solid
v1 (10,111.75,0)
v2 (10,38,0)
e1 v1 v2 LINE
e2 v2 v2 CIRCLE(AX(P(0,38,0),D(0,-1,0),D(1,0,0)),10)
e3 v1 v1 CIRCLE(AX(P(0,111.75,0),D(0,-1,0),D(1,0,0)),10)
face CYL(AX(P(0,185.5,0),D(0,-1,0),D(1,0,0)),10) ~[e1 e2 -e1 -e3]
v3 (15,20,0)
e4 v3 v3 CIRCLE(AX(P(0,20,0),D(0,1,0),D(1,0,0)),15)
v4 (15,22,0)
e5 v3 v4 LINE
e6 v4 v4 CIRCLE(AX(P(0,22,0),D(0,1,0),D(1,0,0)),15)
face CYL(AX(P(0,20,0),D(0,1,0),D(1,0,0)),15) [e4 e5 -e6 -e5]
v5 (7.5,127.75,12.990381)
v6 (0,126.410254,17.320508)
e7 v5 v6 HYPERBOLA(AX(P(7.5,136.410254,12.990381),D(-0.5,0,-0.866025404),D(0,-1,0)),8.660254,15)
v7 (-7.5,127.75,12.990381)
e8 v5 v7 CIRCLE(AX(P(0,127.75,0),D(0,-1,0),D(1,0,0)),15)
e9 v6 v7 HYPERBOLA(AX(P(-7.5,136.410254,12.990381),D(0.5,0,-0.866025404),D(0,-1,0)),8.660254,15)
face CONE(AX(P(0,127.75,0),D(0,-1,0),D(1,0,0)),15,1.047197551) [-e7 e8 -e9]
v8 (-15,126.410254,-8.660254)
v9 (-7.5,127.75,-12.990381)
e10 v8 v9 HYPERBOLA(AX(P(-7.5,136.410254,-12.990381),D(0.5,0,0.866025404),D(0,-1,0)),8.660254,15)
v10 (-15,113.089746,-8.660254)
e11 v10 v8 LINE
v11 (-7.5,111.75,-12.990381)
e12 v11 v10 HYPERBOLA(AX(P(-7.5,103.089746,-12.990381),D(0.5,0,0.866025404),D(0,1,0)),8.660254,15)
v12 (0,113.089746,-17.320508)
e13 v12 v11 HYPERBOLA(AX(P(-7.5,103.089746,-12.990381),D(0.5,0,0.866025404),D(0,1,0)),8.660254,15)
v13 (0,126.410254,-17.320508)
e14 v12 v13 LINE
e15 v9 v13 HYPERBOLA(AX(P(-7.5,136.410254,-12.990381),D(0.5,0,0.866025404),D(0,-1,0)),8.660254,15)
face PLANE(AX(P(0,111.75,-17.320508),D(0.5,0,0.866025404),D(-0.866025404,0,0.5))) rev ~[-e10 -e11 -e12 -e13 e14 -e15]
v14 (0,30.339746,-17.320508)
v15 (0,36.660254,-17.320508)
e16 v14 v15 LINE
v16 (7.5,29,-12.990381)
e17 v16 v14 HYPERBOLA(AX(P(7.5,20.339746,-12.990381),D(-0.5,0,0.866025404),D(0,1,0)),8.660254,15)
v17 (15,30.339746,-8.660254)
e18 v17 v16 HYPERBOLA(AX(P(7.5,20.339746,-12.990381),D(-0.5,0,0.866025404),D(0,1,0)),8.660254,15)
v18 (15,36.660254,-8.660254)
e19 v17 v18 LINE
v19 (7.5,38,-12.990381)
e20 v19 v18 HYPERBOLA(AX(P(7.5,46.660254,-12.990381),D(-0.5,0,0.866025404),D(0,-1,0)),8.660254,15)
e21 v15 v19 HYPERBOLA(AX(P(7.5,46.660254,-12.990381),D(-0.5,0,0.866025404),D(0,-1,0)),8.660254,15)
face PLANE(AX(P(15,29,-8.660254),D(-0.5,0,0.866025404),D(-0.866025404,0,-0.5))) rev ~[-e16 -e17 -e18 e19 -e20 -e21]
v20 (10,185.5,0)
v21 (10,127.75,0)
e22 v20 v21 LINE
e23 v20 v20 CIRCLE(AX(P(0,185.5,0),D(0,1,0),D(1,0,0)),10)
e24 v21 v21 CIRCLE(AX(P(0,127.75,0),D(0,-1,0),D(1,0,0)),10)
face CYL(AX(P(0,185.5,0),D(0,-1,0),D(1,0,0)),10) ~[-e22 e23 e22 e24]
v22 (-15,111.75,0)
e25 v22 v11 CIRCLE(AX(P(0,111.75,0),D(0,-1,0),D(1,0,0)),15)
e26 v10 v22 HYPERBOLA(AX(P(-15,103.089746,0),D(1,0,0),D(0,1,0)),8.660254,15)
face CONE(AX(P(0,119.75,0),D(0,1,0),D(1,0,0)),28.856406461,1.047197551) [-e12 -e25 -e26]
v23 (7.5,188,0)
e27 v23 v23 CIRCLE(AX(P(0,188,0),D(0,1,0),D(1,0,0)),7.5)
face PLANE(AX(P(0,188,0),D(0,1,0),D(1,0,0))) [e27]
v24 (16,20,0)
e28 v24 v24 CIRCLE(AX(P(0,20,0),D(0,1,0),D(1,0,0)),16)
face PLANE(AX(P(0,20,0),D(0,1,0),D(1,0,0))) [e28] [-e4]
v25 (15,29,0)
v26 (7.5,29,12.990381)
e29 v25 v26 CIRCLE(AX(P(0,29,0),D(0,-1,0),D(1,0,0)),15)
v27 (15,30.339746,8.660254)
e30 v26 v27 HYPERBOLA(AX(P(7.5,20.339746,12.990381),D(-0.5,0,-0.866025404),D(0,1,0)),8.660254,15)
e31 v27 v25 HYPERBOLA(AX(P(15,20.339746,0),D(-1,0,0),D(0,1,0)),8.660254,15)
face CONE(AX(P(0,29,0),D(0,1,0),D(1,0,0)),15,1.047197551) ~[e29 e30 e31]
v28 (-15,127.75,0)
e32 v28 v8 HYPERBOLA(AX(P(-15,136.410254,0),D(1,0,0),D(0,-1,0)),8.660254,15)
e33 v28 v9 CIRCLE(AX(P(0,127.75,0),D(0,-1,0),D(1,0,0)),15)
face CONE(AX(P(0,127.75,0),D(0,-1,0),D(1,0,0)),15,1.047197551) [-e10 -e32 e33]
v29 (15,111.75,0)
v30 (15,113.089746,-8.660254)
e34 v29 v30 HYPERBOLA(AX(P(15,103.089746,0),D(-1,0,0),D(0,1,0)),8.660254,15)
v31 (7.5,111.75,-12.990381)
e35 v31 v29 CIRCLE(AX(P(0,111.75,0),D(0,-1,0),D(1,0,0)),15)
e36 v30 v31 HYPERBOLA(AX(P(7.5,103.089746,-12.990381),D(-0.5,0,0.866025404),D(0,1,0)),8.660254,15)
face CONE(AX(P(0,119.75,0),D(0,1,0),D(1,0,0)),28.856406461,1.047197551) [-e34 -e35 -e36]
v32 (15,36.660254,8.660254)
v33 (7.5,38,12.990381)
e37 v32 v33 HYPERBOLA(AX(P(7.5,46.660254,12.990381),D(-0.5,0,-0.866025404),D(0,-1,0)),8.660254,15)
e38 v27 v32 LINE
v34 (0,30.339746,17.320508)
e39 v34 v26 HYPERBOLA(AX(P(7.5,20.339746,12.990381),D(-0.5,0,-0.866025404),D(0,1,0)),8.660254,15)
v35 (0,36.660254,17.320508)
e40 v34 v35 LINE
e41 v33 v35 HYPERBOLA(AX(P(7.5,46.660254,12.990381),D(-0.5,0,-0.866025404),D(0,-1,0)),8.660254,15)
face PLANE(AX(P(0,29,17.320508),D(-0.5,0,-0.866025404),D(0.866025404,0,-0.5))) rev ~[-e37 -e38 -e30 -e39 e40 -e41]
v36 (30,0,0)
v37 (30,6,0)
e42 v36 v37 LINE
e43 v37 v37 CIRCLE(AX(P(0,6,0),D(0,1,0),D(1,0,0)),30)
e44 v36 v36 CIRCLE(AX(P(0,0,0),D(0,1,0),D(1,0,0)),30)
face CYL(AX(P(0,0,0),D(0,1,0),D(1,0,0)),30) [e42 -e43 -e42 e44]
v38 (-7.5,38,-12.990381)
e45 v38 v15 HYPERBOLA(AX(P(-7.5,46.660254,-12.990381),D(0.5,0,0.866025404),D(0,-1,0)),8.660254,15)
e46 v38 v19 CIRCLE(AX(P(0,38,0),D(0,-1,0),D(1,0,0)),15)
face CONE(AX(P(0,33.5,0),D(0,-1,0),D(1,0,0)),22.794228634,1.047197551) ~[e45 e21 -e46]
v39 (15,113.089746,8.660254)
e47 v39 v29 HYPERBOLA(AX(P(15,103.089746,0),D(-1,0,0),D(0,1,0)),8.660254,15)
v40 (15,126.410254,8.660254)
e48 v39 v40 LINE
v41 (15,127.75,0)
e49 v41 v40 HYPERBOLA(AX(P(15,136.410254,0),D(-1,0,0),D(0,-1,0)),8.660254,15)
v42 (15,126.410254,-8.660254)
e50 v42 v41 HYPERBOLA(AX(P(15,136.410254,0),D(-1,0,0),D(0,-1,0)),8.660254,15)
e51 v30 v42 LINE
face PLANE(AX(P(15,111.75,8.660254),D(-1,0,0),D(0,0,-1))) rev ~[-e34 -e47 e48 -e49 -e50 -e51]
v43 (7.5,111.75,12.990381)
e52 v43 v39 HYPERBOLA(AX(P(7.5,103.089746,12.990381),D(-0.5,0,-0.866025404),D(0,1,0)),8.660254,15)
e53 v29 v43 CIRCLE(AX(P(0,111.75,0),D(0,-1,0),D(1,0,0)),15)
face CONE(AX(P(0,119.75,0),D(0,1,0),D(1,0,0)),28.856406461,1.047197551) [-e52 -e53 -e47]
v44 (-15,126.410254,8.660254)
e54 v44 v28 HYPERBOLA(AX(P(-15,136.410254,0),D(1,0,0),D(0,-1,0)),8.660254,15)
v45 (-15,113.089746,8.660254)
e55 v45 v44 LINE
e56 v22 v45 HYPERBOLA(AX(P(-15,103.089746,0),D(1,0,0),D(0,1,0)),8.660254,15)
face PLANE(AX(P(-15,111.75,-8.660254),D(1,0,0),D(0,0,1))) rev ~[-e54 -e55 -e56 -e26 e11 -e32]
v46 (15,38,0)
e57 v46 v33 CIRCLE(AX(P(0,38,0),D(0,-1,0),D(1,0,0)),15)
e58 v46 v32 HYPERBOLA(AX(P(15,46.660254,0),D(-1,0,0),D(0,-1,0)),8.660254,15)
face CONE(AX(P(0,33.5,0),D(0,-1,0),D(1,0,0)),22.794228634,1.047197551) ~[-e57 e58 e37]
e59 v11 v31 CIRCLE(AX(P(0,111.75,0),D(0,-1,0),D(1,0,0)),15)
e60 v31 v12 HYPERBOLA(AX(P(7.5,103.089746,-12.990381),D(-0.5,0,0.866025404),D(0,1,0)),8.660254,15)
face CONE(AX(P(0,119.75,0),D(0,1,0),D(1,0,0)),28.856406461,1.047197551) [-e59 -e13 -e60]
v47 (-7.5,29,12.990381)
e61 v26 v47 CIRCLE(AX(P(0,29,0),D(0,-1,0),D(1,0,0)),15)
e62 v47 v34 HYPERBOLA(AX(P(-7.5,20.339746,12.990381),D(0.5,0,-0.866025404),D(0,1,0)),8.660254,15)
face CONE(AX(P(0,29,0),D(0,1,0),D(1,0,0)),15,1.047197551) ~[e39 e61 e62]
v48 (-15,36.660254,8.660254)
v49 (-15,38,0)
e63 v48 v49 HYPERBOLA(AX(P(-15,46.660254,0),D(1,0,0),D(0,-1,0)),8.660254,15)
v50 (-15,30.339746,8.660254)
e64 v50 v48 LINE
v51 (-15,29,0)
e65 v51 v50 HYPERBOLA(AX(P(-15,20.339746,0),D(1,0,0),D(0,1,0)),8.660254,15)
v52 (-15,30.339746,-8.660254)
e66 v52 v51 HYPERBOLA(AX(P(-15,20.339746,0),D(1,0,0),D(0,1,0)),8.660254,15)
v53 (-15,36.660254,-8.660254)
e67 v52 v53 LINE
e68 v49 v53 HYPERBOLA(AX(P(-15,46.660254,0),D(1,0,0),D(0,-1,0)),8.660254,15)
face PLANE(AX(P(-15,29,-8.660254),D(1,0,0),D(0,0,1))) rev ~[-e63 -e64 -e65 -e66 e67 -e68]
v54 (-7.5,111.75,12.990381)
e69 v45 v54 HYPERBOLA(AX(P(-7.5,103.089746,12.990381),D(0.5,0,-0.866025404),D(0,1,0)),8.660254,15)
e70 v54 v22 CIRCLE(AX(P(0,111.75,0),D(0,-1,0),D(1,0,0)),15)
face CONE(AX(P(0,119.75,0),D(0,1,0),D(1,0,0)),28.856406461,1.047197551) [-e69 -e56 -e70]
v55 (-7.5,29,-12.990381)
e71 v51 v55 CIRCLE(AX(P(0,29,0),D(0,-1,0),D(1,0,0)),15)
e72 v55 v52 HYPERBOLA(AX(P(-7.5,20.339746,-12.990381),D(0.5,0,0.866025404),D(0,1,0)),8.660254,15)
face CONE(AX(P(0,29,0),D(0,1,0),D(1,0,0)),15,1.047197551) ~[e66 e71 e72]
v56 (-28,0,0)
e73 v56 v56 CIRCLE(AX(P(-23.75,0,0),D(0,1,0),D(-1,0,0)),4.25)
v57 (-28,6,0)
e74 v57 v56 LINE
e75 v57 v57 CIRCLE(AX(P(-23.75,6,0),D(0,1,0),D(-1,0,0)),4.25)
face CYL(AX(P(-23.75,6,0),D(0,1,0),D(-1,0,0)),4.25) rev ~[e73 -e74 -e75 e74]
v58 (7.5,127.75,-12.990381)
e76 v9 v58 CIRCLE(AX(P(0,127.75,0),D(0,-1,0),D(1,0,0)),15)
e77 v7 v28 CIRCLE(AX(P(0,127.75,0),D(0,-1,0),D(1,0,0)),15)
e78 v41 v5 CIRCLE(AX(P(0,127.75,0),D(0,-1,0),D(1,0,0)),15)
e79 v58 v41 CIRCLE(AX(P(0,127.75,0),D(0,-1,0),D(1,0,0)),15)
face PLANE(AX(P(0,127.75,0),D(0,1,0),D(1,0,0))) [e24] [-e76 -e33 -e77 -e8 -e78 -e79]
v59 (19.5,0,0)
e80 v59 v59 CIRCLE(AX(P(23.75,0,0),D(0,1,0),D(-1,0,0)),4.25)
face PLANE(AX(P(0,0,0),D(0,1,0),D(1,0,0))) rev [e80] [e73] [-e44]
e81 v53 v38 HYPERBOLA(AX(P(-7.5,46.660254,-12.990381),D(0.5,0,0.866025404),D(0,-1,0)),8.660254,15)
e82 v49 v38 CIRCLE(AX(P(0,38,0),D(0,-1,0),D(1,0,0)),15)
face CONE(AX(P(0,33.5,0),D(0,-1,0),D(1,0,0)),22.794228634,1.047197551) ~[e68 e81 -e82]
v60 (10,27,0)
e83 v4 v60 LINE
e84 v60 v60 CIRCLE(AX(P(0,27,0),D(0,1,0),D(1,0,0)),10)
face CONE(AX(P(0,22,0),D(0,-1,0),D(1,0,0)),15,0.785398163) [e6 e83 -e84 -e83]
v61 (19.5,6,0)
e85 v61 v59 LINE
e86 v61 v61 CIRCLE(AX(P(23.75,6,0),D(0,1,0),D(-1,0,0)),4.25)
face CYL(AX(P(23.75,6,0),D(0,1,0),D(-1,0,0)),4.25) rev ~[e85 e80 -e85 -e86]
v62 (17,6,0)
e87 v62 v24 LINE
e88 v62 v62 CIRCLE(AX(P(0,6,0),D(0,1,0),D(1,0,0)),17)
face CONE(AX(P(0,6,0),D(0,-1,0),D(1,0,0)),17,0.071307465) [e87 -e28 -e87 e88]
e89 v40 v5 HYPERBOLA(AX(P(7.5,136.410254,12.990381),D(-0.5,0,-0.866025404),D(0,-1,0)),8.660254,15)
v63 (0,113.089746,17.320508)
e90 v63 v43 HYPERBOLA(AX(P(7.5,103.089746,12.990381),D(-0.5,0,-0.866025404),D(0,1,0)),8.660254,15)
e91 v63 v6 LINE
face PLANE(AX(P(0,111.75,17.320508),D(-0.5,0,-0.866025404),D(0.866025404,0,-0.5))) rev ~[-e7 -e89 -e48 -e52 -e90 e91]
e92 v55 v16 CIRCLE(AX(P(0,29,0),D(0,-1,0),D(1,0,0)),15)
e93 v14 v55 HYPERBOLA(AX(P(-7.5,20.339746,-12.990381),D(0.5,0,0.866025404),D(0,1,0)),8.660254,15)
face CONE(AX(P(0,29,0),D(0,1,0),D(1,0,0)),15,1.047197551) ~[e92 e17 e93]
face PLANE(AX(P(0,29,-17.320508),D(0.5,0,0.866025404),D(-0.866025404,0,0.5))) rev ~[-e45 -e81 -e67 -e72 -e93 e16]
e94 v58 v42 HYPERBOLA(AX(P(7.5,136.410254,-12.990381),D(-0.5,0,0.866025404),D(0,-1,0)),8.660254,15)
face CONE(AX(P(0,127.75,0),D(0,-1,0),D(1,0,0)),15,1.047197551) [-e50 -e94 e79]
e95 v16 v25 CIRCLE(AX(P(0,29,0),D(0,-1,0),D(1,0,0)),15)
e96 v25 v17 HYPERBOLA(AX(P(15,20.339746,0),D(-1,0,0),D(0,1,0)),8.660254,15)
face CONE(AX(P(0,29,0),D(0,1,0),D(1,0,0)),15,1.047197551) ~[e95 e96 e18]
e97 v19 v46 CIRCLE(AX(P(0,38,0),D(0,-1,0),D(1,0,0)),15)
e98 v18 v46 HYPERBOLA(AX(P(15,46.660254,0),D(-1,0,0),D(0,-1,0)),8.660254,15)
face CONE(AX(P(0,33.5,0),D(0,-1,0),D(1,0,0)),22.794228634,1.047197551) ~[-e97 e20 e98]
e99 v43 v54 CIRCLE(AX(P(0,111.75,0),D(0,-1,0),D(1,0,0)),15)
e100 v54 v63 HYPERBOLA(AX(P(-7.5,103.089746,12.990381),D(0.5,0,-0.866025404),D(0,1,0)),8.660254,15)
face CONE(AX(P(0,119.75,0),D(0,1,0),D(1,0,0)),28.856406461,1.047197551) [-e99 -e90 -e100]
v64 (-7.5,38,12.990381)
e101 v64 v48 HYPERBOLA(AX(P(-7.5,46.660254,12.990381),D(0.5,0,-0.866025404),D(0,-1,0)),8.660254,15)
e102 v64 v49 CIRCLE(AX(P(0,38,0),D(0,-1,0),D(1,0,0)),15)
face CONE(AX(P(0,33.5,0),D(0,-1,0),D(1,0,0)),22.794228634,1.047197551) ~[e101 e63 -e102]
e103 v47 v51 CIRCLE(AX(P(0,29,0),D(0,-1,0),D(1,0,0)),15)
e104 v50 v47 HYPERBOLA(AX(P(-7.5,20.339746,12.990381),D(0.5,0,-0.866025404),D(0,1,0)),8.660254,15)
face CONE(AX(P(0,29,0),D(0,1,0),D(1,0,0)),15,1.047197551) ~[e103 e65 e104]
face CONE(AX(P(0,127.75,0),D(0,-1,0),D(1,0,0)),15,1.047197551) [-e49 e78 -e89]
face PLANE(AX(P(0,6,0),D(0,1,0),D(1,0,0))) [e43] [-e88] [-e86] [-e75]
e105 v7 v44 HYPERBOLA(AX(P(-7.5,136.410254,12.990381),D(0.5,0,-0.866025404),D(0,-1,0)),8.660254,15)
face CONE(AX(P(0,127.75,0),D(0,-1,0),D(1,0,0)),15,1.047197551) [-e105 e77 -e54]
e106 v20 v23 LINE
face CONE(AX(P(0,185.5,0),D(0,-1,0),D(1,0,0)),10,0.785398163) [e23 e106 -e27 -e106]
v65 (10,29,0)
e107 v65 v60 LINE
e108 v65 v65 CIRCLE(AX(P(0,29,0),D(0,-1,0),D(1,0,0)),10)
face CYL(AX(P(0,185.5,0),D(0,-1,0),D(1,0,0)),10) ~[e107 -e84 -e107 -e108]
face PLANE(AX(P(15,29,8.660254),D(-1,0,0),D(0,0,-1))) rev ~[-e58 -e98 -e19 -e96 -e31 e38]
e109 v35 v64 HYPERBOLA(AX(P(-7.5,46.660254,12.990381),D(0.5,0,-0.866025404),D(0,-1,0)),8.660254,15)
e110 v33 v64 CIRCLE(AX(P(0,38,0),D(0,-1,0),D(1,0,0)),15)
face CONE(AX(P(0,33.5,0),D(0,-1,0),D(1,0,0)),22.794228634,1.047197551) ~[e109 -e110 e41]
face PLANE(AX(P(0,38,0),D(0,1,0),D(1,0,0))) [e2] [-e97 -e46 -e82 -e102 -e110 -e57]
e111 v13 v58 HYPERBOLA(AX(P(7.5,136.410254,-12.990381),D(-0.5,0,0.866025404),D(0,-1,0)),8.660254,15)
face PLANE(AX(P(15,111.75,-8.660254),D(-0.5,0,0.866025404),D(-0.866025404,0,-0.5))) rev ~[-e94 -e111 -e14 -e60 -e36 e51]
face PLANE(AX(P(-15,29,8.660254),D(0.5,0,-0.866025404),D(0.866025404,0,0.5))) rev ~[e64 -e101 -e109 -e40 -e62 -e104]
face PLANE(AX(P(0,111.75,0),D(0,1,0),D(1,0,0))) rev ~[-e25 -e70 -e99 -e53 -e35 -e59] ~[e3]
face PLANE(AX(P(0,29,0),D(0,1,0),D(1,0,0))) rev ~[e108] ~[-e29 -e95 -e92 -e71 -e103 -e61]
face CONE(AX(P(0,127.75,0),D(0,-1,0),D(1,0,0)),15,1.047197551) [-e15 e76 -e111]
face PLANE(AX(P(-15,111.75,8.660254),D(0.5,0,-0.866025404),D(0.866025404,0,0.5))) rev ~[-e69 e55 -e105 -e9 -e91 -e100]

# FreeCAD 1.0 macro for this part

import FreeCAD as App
import Part
import Sketcher
from FreeCAD import Vector
Q = App.Units.Quantity


def add_polygon(sketch, points):
    """Adds a closed chain of lines whose ends are joined by coincident constraints."""
    first, n = sketch.GeometryCount, len(points)
    for a, b in zip(points, points[1:] + points[:1]):
        sketch.addGeometry(Part.LineSegment(App.Vector(*a, 0), App.Vector(*b, 0)), False)
    for i in range(n):
        sketch.addConstraint(Sketcher.Constraint("Coincident", first + i, 2, first + (i + 1) % n, 1))

doc = App.newDocument("Part")
body = doc.addObject("PartDesign::Body", "Body")

sketch1 = body.newObject("Sketcher::SketchObject", "Sketch")
sketch1.AttachmentSupport = (doc.getObject("XY_Plane"), [""])
sketch1.MapMode = "FlatFace"
add_polygon(sketch1, [(-30, 0), (0, 0), (0, 188), (-7.5, 188), (-10, 185.5), (-10, 27), (-15, 22), (-15, 20), (-16, 20), (-17, 6), (-30, 6)])
sketch1.addConstraint(Sketcher.Constraint("Horizontal", 0))
sketch1.addConstraint(Sketcher.Constraint("Vertical", 1))
sketch1.addConstraint(Sketcher.Constraint("Horizontal", 2))
sketch1.addConstraint(Sketcher.Constraint("Vertical", 4))
sketch1.addConstraint(Sketcher.Constraint("Vertical", 6))
sketch1.addConstraint(Sketcher.Constraint("Horizontal", 7))
sketch1.addConstraint(Sketcher.Constraint("Horizontal", 9))
sketch1.addConstraint(Sketcher.Constraint("Vertical", 10))
sketch1.addConstraint(Sketcher.Constraint("Coincident", 0, 2, -1, 1))
sketch1.addConstraint(Sketcher.Constraint("Parallel", 3, 5))
sketch1.addConstraint(Sketcher.Constraint("DistanceX", 0, 1, 0, 2, 30.0))
sketch1.addConstraint(Sketcher.Constraint("DistanceX", 7, 2, 7, 1, 1.0))
sketch1.addConstraint(Sketcher.Constraint("DistanceX", 9, 2, 9, 1, 13.0))
sketch1.addConstraint(Sketcher.Constraint("DistanceY", 1, 1, 1, 2, 188.0))
sketch1.addConstraint(Sketcher.Constraint("DistanceY", 6, 2, 6, 1, 2.0))
sketch1.addConstraint(Sketcher.Constraint("DistanceY", 10, 2, 10, 1, 6.0))
sketch1.addConstraint(Sketcher.Constraint("Angle", 3, Q("-135 deg")))
sketch1.addConstraint(Sketcher.Constraint("DistanceX", 2, 2, 2, 1, 7.5))
sketch1.addConstraint(Sketcher.Constraint("DistanceY", 4, 2, 4, 1, 158.5))
sketch1.addConstraint(Sketcher.Constraint("DistanceX", 3, 2, -1, 1, 10.0))
sketch1.addConstraint(Sketcher.Constraint("DistanceX", 5, 2, -1, 1, 15.0))
revolution = body.newObject("PartDesign::Revolution", "Revolution")
revolution.Profile = sketch1
revolution.ReferenceAxis = (sketch1, ["V_Axis"])
revolution.Angle = 360

sketch2 = body.newObject("Sketcher::SketchObject", "Sketch001")
sketch2.AttachmentSupport = (doc.getObject("XZ_Plane"), [""])
sketch2.MapMode = "FlatFace"
sketch2.AttachmentOffset = App.Placement(Vector(0, 0, -29), App.Rotation())
add_polygon(sketch2, [(0, -17.320508), (-15, -8.660254), (-15, 8.660254), (0, 17.320508), (15, 8.660254), (15, -8.660254)])
sketch2.addConstraint(Sketcher.Constraint("Vertical", 1))
sketch2.addConstraint(Sketcher.Constraint("Vertical", 4))
sketch2.addConstraint(Sketcher.Constraint("Symmetric", 0, 2, 3, 2, -1, 1))
sketch2.addConstraint(Sketcher.Constraint("Symmetric", 2, 2, 5, 2, -1, 1))
sketch2.addConstraint(Sketcher.Constraint("PointOnObject", 2, 2, -2))
sketch2.addConstraint(Sketcher.Constraint("Parallel", 2, 5))
sketch2.addConstraint(Sketcher.Constraint("Horizontal", 1, 2, 3, 2))
sketch2.addConstraint(Sketcher.Constraint("Angle", 0, Q("150 deg")))
sketch2.addConstraint(Sketcher.Constraint("DistanceX", 0, 2, -1, 1, 15.0))
sketch2.addConstraint(Sketcher.Constraint("DistanceY", 1, 1, 1, 2, 17.320508))
pad1 = body.newObject("PartDesign::Pad", "Pad")
pad1.Profile = sketch2
pad1.Length = 9
pad1.Reversed = True

sketch3 = body.newObject("Sketcher::SketchObject", "Sketch002")
sketch3.AttachmentSupport = (doc.getObject("XZ_Plane"), [""])
sketch3.MapMode = "FlatFace"
sketch3.AttachmentOffset = App.Placement(Vector(0, 0, -111.75), App.Rotation())
add_polygon(sketch3, [(15, -8.660254), (0, -17.320508), (-15, -8.660254), (-15, 8.660254), (0, 17.320508), (15, 8.660254)])
sketch3.addConstraint(Sketcher.Constraint("Vertical", 2))
sketch3.addConstraint(Sketcher.Constraint("Vertical", 5))
sketch3.addConstraint(Sketcher.Constraint("Symmetric", 0, 2, 3, 2, -1, 1))
sketch3.addConstraint(Sketcher.Constraint("Symmetric", 1, 2, 4, 2, -1, 1))
sketch3.addConstraint(Sketcher.Constraint("PointOnObject", 0, 2, -2))
sketch3.addConstraint(Sketcher.Constraint("Parallel", 0, 3))
sketch3.addConstraint(Sketcher.Constraint("Horizontal", 2, 2, 4, 2))
sketch3.addConstraint(Sketcher.Constraint("Angle", 0, Q("-150 deg")))
sketch3.addConstraint(Sketcher.Constraint("DistanceX", 1, 2, -1, 1, 15.0))
sketch3.addConstraint(Sketcher.Constraint("DistanceY", 2, 1, 2, 2, 17.320508))
pad2 = body.newObject("PartDesign::Pad", "Pad001")
pad2.Profile = sketch3
pad2.Length = 16
pad2.Reversed = True

sketch4 = body.newObject("Sketcher::SketchObject", "Sketch003")
sketch4.AttachmentSupport = (doc.getObject("XY_Plane"), [""])
sketch4.MapMode = "FlatFace"
add_polygon(sketch4, [(-15, 127.75), (-28.856406, 127.75), (-28.856406, 119.75)])
add_polygon(sketch4, [(-28.856406, 119.75), (-28.856406, 111.75), (-15, 111.75)])
add_polygon(sketch4, [(-22.794229, 38), (-22.794229, 33.5), (-15, 38)])
add_polygon(sketch4, [(-22.794229, 33.5), (-22.794229, 29), (-15, 29)])
sketch4.addConstraint(Sketcher.Constraint("Horizontal", 0))
sketch4.addConstraint(Sketcher.Constraint("Vertical", 1))
sketch4.addConstraint(Sketcher.Constraint("Vertical", 3))
sketch4.addConstraint(Sketcher.Constraint("Horizontal", 4))
sketch4.addConstraint(Sketcher.Constraint("Vertical", 6))
sketch4.addConstraint(Sketcher.Constraint("Horizontal", 8))
sketch4.addConstraint(Sketcher.Constraint("Vertical", 9))
sketch4.addConstraint(Sketcher.Constraint("Horizontal", 10))
sketch4.addConstraint(Sketcher.Constraint("Coincident", 5, 2, 1, 2))
sketch4.addConstraint(Sketcher.Constraint("Coincident", 11, 2, 6, 2))
sketch4.addConstraint(Sketcher.Constraint("Parallel", 2, 7))
sketch4.addConstraint(Sketcher.Constraint("Parallel", 5, 11))
sketch4.addConstraint(Sketcher.Constraint("Vertical", 2, 2, 4, 2))
sketch4.addConstraint(Sketcher.Constraint("Vertical", 4, 2, 7, 2))
sketch4.addConstraint(Sketcher.Constraint("Vertical", 7, 2, 10, 2))
sketch4.addConstraint(Sketcher.Constraint("Equal", 1, 3))
sketch4.addConstraint(Sketcher.Constraint("DistanceY", 1, 2, 1, 1, 8.0))
sketch4.addConstraint(Sketcher.Constraint("Angle", 2, Q("30 deg")))
sketch4.addConstraint(Sketcher.Constraint("Distance", 7, 9.0))
sketch4.addConstraint(Sketcher.Constraint("DistanceX", 2, 2, -1, 1, 15.0))
sketch4.addConstraint(Sketcher.Constraint("DistanceY", -1, 1, 7, 2, 38.0))
sketch4.addConstraint(Sketcher.Constraint("DistanceY", -1, 1, 0, 2, 127.75))
groove = body.newObject("PartDesign::Groove", "Groove")
groove.Profile = sketch4
groove.ReferenceAxis = (sketch4, ["V_Axis"])
groove.Angle = 360

sketch5 = body.newObject("Sketcher::SketchObject", "Sketch004")
sketch5.AttachmentSupport = (doc.getObject("XZ_Plane"), [""])
sketch5.MapMode = "FlatFace"
sketch5.AttachmentOffset = App.Placement(Vector(0, 0, -6), App.Rotation())
sketch5.addGeometry(Part.Circle(Vector(-23.75, 0, 0), Vector(0, 0, 1), 4.25), False)
sketch5.addGeometry(Part.Circle(Vector(23.75, 0, 0), Vector(0, 0, 1), 4.25), False)
sketch5.addConstraint(Sketcher.Constraint("Equal", 0, 1))
sketch5.addConstraint(Sketcher.Constraint("Symmetric", 0, 3, 1, 3, -1, 1))
sketch5.addConstraint(Sketcher.Constraint("PointOnObject", 0, 3, -1))
sketch5.addConstraint(Sketcher.Constraint("Diameter", 0, 8.5))
sketch5.addConstraint(Sketcher.Constraint("DistanceX", 0, 3, 1, 3, 47.5))
pocket1 = body.newObject("PartDesign::Pocket", "Pocket")
pocket1.Profile = sketch5
pocket1.Type = "ThroughAll"
pocket1.Reversed = True

doc.recompute()
